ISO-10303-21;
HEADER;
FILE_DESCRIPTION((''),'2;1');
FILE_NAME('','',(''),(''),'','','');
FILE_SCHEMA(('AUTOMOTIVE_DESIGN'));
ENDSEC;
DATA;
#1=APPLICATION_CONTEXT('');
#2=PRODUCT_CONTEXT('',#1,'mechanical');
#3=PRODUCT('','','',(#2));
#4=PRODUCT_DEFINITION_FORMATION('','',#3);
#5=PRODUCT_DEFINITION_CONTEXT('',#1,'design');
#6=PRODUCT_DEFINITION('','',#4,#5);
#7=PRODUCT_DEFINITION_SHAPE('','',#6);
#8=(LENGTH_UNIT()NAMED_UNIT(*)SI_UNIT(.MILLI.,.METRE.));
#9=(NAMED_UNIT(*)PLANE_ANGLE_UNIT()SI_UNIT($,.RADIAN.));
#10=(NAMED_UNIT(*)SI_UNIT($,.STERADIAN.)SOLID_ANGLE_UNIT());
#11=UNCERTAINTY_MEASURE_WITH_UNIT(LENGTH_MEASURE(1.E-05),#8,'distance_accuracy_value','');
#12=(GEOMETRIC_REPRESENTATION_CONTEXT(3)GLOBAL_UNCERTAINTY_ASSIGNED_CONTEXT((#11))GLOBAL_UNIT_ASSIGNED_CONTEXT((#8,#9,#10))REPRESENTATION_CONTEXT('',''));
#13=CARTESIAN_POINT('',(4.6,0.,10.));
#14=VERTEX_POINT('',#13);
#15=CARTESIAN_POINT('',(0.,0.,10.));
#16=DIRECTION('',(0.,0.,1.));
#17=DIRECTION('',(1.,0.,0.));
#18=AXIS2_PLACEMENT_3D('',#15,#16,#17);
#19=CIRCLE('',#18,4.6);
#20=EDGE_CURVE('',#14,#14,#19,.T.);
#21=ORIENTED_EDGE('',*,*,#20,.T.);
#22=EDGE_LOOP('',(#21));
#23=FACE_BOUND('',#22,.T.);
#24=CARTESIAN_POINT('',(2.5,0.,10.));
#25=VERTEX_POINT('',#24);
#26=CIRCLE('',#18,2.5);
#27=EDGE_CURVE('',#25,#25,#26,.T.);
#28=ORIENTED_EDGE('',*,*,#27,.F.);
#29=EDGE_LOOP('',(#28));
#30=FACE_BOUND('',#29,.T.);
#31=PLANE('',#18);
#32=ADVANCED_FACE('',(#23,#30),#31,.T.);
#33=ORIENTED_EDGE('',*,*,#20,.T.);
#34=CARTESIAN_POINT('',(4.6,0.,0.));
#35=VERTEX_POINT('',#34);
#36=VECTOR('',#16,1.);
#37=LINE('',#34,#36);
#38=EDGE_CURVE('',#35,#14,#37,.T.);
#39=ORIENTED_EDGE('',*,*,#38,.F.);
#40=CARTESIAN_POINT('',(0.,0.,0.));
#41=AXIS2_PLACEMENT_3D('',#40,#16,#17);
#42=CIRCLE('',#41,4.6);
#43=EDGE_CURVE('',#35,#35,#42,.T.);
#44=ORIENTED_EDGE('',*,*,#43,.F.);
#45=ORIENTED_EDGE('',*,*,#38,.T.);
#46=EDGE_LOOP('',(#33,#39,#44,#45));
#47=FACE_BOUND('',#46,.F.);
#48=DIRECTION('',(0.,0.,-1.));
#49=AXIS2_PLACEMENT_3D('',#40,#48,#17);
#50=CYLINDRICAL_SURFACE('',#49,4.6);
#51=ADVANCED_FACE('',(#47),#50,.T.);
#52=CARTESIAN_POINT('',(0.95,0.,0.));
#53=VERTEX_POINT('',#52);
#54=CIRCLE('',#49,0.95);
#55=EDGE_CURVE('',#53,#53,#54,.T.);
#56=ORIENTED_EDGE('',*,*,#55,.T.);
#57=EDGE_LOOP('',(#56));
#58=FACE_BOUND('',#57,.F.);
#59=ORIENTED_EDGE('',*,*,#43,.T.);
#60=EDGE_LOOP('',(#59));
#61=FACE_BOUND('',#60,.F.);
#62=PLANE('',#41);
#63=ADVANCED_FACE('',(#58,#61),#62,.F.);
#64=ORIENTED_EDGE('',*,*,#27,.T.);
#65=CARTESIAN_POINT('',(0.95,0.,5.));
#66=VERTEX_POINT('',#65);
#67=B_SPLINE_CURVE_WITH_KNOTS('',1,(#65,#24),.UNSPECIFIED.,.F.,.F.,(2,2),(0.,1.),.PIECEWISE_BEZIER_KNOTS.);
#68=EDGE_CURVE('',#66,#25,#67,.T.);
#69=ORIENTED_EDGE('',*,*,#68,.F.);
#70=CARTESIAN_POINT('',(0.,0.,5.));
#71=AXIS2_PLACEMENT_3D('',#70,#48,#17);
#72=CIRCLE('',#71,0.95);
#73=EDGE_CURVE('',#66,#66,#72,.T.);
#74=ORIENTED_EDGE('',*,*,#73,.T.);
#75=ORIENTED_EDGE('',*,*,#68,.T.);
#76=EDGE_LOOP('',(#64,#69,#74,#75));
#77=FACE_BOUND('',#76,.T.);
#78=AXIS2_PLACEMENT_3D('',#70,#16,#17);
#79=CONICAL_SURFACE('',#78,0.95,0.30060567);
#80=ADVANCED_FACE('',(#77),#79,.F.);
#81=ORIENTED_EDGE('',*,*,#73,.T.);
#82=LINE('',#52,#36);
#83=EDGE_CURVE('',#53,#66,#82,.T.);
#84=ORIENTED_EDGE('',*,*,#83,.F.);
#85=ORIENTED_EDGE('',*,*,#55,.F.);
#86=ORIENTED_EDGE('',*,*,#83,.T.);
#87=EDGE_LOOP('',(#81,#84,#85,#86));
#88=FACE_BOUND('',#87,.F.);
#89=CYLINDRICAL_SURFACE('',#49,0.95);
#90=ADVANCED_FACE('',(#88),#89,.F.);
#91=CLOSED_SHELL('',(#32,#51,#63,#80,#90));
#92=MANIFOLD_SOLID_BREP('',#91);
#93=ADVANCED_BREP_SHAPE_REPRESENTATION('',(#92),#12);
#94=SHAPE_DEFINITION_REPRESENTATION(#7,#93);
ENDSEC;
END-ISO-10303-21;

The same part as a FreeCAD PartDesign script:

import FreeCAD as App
import Part
import Sketcher
from FreeCAD import Vector
Q = App.Units.Quantity

doc = App.newDocument("Part")
params = doc.addObject("Spreadsheet::Sheet", "Params")
for row, (alias, value) in enumerate([
    ("sketch1_diameter", "9.2 mm"),
    ("pad1_length", "10 mm"),
    ("sketch2_diameter", "1.9 mm"),
    ("pocket1_length", "5 mm"),
    ("sketch3_diameter", "1.9 mm"),
    ("sketch4_diameter", "5 mm"),
], start=1):
    params.set(f"A{row}", alias)
    params.set(f"B{row}", "=" + value)
    params.setAlias(f"B{row}", alias)

body = doc.addObject("PartDesign::Body", "Body")

# Sketch on XY plane
sketch1 = body.newObject("Sketcher::SketchObject", "Sketch")
sketch1.AttachmentSupport = (doc.getObject("XY_Plane"), [""])
sketch1.MapMode = "FlatFace"
sketch1.addGeometry(Part.Circle(Vector(0, 0, 0), Vector(0, 0, 1), 4.6), False)
sketch1.addConstraint([
    Sketcher.Constraint("Coincident", 0, 3, -1, 1),
    Sketcher.Constraint("Diameter", 0, Q("9.2 mm")),
])
sketch1.setExpression("Constraints[1]", "Params.sketch1_diameter")
pad1 = body.newObject("PartDesign::Pad", "Pad")
pad1.Profile = sketch1
pad1.setExpression("Length", "Params.pad1_length")

# Sketch on XY plane
sketch2 = body.newObject("Sketcher::SketchObject", "Sketch001")
sketch2.AttachmentSupport = (doc.getObject("XY_Plane"), [""])
sketch2.MapMode = "FlatFace"
sketch2.addGeometry(Part.Circle(Vector(0, 0, 0), Vector(0, 0, 1), 0.95), False)
sketch2.addConstraint([
    Sketcher.Constraint("Coincident", 0, 3, -1, 1),
    Sketcher.Constraint("Diameter", 0, Q("1.9 mm")),
])
sketch2.setExpression("Constraints[1]", "Params.sketch2_diameter")
pocket1 = body.newObject("PartDesign::Pocket", "Pocket")
pocket1.Profile = sketch2
pocket1.setExpression("Length", "Params.pocket1_length")
pocket1.Reversed = True

# Sketch on XY plane
sketch3 = body.newObject("Sketcher::SketchObject", "Sketch002")
sketch3.AttachmentSupport = (doc.getObject("XY_Plane"), [""])
sketch3.MapMode = "FlatFace"
sketch3.AttachmentOffset = App.Placement(Vector(0, 0, 5), App.Rotation())
sketch3.addGeometry(Part.Circle(Vector(0, 0, 0), Vector(0, 0, 1), 0.95), False)
sketch3.addConstraint([
    Sketcher.Constraint("Coincident", 0, 3, -1, 1),
    Sketcher.Constraint("Diameter", 0, Q("1.9 mm")),
])
sketch3.setExpression("Constraints[1]", "Params.sketch3_diameter")

# Sketch on XY plane
sketch4 = body.newObject("Sketcher::SketchObject", "Sketch003")
sketch4.AttachmentSupport = (doc.getObject("XY_Plane"), [""])
sketch4.MapMode = "FlatFace"
sketch4.AttachmentOffset = App.Placement(Vector(0, 0, 10), App.Rotation())
sketch4.addGeometry(Part.Circle(Vector(0, 0, 0), Vector(0, 0, 1), 2.5), False)
sketch4.addConstraint([
    Sketcher.Constraint("Coincident", 0, 3, -1, 1),
    Sketcher.Constraint("Diameter", 0, Q("5 mm")),
])
sketch4.setExpression("Constraints[1]", "Params.sketch4_diameter")

subtractiveloft = body.newObject("PartDesign::SubtractiveLoft", "SubtractiveLoft")
subtractiveloft.Profile = sketch3
subtractiveloft.Sections = [sketch4]

doc.recompute()
